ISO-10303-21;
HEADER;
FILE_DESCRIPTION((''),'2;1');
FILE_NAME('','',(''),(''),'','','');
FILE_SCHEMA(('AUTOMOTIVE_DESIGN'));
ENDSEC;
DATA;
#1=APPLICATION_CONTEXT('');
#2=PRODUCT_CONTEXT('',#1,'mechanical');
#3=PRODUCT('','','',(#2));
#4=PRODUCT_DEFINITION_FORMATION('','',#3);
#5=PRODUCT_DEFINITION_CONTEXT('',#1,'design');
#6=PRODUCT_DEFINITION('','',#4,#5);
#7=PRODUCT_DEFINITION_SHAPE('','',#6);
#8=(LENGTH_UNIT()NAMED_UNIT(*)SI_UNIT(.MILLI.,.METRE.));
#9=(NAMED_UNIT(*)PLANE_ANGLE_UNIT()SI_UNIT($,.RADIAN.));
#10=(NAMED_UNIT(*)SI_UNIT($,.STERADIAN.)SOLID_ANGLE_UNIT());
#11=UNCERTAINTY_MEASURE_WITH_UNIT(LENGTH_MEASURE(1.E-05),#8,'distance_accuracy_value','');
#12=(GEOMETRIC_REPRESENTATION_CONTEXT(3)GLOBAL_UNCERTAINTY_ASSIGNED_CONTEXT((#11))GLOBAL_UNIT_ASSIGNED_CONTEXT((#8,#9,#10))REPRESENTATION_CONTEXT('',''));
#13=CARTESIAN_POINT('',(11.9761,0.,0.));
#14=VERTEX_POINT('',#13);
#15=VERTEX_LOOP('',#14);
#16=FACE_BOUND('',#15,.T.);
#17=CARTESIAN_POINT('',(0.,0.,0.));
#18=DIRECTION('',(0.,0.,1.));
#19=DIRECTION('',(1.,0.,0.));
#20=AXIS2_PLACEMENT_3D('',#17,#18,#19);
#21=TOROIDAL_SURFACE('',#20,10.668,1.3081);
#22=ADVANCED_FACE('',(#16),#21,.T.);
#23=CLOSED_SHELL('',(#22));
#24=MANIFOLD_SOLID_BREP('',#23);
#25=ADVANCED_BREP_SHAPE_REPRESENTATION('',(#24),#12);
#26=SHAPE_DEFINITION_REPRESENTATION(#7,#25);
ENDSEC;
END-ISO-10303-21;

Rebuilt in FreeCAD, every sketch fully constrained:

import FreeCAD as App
import Part
import Sketcher
Q = App.Units.Quantity

doc = App.newDocument("Part")
body = doc.addObject("PartDesign::Body", "Body")

# Sketch on YZ plane
sketch1 = doc.addObject("Sketcher::SketchObject", "Sketch")
body.addObject(sketch1)
sketch1.AttachmentSupport = (doc.YZ_Plane, [""])
sketch1.MapMode = "FlatFace"
sketch1.addGeometry(Part.Circle(App.Vector(-10.7, 0, 0), App.Vector(0, 0, 1), 1.3), False)
sketch1.addConstraint(Sketcher.Constraint("PointOnObject", 0, 3, -1))
sketch1.addConstraint(Sketcher.Constraint("Diameter", 0, Q("0.103 in")))
sketch1.addConstraint(Sketcher.Constraint("DistanceX", 0, 3, -1, 1, Q("0.42 in")))
revolution = doc.addObject("PartDesign::Revolution", "Revolution")
body.addObject(revolution)
revolution.Profile = sketch1
revolution.ReferenceAxis = (sketch1, ["V_Axis"])
revolution.Angle = 360

doc.recompute()
